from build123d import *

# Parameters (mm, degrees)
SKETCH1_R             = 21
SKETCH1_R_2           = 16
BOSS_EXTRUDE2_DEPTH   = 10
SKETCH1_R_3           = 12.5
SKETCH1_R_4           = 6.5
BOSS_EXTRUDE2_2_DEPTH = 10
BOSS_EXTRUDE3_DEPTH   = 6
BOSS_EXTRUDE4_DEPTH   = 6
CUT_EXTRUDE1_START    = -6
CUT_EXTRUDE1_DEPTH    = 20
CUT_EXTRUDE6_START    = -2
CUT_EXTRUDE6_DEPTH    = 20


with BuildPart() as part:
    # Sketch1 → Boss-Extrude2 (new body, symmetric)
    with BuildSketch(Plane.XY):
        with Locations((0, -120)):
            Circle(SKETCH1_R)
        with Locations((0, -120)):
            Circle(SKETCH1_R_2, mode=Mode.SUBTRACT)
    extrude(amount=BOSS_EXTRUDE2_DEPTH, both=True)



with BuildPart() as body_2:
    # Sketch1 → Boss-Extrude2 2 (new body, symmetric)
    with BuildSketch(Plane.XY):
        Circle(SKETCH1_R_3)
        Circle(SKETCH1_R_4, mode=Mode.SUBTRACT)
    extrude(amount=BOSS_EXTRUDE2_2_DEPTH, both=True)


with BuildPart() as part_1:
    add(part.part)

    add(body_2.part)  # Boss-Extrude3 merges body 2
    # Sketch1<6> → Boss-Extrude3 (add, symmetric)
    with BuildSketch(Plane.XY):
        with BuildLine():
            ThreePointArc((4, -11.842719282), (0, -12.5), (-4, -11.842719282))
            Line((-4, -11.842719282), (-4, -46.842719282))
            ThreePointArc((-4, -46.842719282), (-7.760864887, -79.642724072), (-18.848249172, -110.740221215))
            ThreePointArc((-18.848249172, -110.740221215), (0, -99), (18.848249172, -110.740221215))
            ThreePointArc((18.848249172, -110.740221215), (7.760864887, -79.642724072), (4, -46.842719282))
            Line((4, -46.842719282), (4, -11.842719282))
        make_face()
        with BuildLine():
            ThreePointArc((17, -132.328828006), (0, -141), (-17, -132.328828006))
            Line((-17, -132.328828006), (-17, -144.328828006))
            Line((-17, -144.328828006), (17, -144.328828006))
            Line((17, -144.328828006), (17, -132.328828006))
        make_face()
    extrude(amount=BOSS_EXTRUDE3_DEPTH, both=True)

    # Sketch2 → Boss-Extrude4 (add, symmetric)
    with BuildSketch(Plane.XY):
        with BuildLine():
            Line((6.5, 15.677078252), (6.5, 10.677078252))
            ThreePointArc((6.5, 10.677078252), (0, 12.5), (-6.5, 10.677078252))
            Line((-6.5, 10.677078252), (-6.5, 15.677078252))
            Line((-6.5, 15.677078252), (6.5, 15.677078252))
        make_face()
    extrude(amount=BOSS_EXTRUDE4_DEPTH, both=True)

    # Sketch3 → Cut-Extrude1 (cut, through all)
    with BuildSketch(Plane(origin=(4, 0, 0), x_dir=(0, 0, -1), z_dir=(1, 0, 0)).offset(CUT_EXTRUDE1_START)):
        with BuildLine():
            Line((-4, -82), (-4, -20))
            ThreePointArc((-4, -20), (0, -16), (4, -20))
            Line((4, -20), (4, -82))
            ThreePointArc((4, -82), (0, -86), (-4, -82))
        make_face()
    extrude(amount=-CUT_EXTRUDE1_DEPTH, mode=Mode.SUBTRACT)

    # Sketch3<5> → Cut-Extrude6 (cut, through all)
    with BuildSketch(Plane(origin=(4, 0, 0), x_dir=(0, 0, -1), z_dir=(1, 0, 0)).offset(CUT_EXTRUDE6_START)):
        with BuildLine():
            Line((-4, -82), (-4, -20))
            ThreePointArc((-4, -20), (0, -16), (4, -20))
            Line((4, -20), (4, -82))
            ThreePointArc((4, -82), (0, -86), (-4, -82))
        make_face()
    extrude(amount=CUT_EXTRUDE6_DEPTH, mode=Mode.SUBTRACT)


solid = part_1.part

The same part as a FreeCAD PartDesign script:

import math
import FreeCAD as App
import Part
import Sketcher

doc = App.newDocument("Part")
params = doc.addObject("Spreadsheet::Sheet", "Params")
for row, (alias, value) in enumerate([
    ("sketch1_diameter", "42 mm"),
    ("sketch1_diameter2", "32 mm"),
    ("pad1_length", "20 mm"),
    ("sketch2_diameter", "25 mm"),
    ("sketch2_diameter2", "13 mm"),
    ("pad2_length", "20 mm"),
    ("sketch3_radius", "21 mm"),
    ("sketch3_radius2", "12.5 mm"),
    ("sketch3_width", "34 mm"),
    ("sketch3_height", "35 mm"),
    ("sketch3_height2", "12 mm"),
    ("pad3_length", "12 mm"),
    ("sketch4_radius", "12.5 mm"),
    ("sketch4_width", "13 mm"),
    ("sketch4_height", "5 mm"),
    ("pad4_length", "12 mm"),
    ("sketch5_radius", "4 mm"),
    ("sketch5_width", "62 mm"),
    ("sketch6_radius", "4 mm"),
    ("sketch6_width", "62 mm"),
], start=1):
    params.set(f"A{row}", alias)
    params.set(f"B{row}", "=" + value)
    params.setAlias(f"B{row}", alias)

body = doc.addObject("PartDesign::Body", "Body")

sketch1 = body.newObject("Sketcher::SketchObject", "Sketch")
sketch1.AttachmentSupport = (doc.getObject("XY_Plane"), [""])
sketch1.MapMode = "FlatFace"
sketch1.addGeometry([
    Part.Circle(App.Vector(0, -120, 0), App.Vector(0, 0, 1), 21),
    Part.Circle(App.Vector(0, -120, 0), App.Vector(0, 0, 1), 16),
], False)
sketch1.addConstraint([
    Sketcher.Constraint("Coincident", 1, 3, 0, 3),
    Sketcher.Constraint("PointOnObject", 0, 3, -2),
    Sketcher.Constraint("Diameter", 0, 42.0),
    Sketcher.Constraint("Diameter", 1, 32.0),
    Sketcher.Constraint("DistanceY", 0, 3, -1, 1, 120.0),
])
sketch1.setExpression("Constraints[2]", "Params.sketch1_diameter")
sketch1.setExpression("Constraints[3]", "Params.sketch1_diameter2")
pad1 = body.newObject("PartDesign::Pad", "Pad")
pad1.Profile = sketch1
pad1.setExpression("Length", "Params.pad1_length")
pad1.Midplane = True
body2 = doc.addObject("PartDesign::Body", "Body001")

sketch2 = body2.newObject("Sketcher::SketchObject", "Sketch001")
sketch2.AttachmentSupport = (doc.getObject("XY_Plane001"), [""])
sketch2.MapMode = "FlatFace"
sketch2.addGeometry([
    Part.Circle(App.Vector(0, 0, 0), App.Vector(0, 0, 1), 12.5),
    Part.Circle(App.Vector(0, 0, 0), App.Vector(0, 0, 1), 6.5),
], False)
sketch2.addConstraint([
    Sketcher.Constraint("Coincident", 0, 3, -1, 1),
    Sketcher.Constraint("Coincident", 1, 3, -1, 1),
    Sketcher.Constraint("Diameter", 0, 25.0),
    Sketcher.Constraint("Diameter", 1, 13.0),
])
sketch2.setExpression("Constraints[2]", "Params.sketch2_diameter")
sketch2.setExpression("Constraints[3]", "Params.sketch2_diameter2")
pad2 = body2.newObject("PartDesign::Pad", "Pad001")
pad2.Profile = sketch2
pad2.setExpression("Length", "Params.pad2_length")
pad2.Midplane = True
body.AllowCompound = True
doc.recompute()

boolean = body.newObject("PartDesign::Boolean", "Boolean")
boolean.Type = "Fuse"
boolean.addObjects([body2])

sketch3 = body.newObject("Sketcher::SketchObject", "Sketch002")
sketch3.AttachmentSupport = (doc.getObject("XY_Plane"), [""])
sketch3.MapMode = "FlatFace"
sketch3.addGeometry([
    Part.ArcOfCircle(Part.Circle(App.Vector(0, 0, 0), App.Vector(0, 0, 1), 12.5), math.radians(-108.662925), math.radians(-71.337075)),
    Part.LineSegment(App.Vector(-4, -11.842719, 0), App.Vector(-4, -46.842719, 0)),
    Part.ArcOfCircle(Part.Circle(App.Vector(-148.911404, -46.842719, 0), App.Vector(0, 0, 1), 144.911404), math.radians(-26.16399), math.radians(0)),
    Part.ArcOfCircle(Part.Circle(App.Vector(0, -120, 0), App.Vector(0, 0, 1), 21), math.radians(26.16399), math.radians(153.83601)),
    Part.ArcOfCircle(Part.Circle(App.Vector(148.911404, -46.842719, 0), App.Vector(0, 0, 1), 144.911404), math.radians(-180), math.radians(-153.83601)),
    Part.LineSegment(App.Vector(4, -46.842719, 0), App.Vector(4, -11.842719, 0)),
    Part.ArcOfCircle(Part.Circle(App.Vector(0, -120, 0), App.Vector(0, 0, 1), 21), math.radians(-144.049432), math.radians(-35.950568)),
    Part.LineSegment(App.Vector(-17, -132.328828, 0), App.Vector(-17, -144.328828, 0)),
    Part.LineSegment(App.Vector(-17, -144.328828, 0), App.Vector(17, -144.328828, 0)),
    Part.LineSegment(App.Vector(17, -144.328828, 0), App.Vector(17, -132.328828, 0)),
], False)
sketch3.addConstraint([
    Sketcher.Constraint("Coincident", 0, 1, 1, 1),
    Sketcher.Constraint("Tangent", 1, 2, 2, 2),
    Sketcher.Constraint("Tangent", 2, 1, 3, 2),
    Sketcher.Constraint("Tangent", 3, 1, 4, 2),
    Sketcher.Constraint("Tangent", 4, 1, 5, 1),
    Sketcher.Constraint("Coincident", 5, 2, 0, 2),
    Sketcher.Constraint("Coincident", 6, 1, 7, 1),
    Sketcher.Constraint("Coincident", 7, 2, 8, 1),
    Sketcher.Constraint("Coincident", 8, 2, 9, 1),
    Sketcher.Constraint("Coincident", 9, 2, 6, 2),
    Sketcher.Constraint("Vertical", 1),
    Sketcher.Constraint("Vertical", 5),
    Sketcher.Constraint("Vertical", 7),
    Sketcher.Constraint("Horizontal", 8),
    Sketcher.Constraint("Vertical", 9),
    Sketcher.Constraint("Coincident", 0, 3, -1, 1),
    Sketcher.Constraint("Coincident", 6, 3, 3, 3),
    Sketcher.Constraint("Equal", 2, 4),
    Sketcher.Constraint("Equal", 3, 6),
    Sketcher.Constraint("Symmetric", 2, 3, 4, 3, -2),
    Sketcher.Constraint("Horizontal", 6, 1, 9, 2),
    Sketcher.Constraint("Radius", 3, 21.0),
    Sketcher.Constraint("Radius", 0, 12.5),
    Sketcher.Constraint("DistanceX", 8, 1, 8, 2, 34.0),
    Sketcher.Constraint("DistanceY", 1, 2, 1, 1, 35.0),
    Sketcher.Constraint("DistanceY", 7, 2, 7, 1, 12.0),
    Sketcher.Constraint("DistanceY", 3, 3, -1, 1, 120.0),
    Sketcher.Constraint("DistanceX", 0, 1, -1, 1, 4.0),
])
sketch3.setExpression("Constraints[21]", "Params.sketch3_radius")
sketch3.setExpression("Constraints[22]", "Params.sketch3_radius2")
sketch3.setExpression("Constraints[23]", "Params.sketch3_width")
sketch3.setExpression("Constraints[24]", "Params.sketch3_height")
sketch3.setExpression("Constraints[25]", "Params.sketch3_height2")
pad3 = body.newObject("PartDesign::Pad", "Pad002")
pad3.Profile = sketch3
pad3.setExpression("Length", "Params.pad3_length")
pad3.Midplane = True

sketch4 = body.newObject("Sketcher::SketchObject", "Sketch003")
sketch4.AttachmentSupport = (doc.getObject("XY_Plane"), [""])
sketch4.MapMode = "FlatFace"
sketch4.addGeometry([
    Part.LineSegment(App.Vector(6.5, 10.677078, 0), App.Vector(6.5, 15.677078, 0)),
    Part.LineSegment(App.Vector(6.5, 15.677078, 0), App.Vector(-6.5, 15.677078, 0)),
    Part.LineSegment(App.Vector(-6.5, 15.677078, 0), App.Vector(-6.5, 10.677078, 0)),
    Part.ArcOfCircle(Part.Circle(App.Vector(0, 0, 0), App.Vector(0, 0, 1), 12.5), math.radians(58.667749), math.radians(121.332251)),
], False)
sketch4.addConstraint([
    Sketcher.Constraint("Coincident", 0, 2, 1, 1),
    Sketcher.Constraint("Coincident", 1, 2, 2, 1),
    Sketcher.Constraint("Coincident", 2, 2, 3, 2),
    Sketcher.Constraint("Coincident", 3, 1, 0, 1),
    Sketcher.Constraint("Vertical", 0),
    Sketcher.Constraint("Horizontal", 1),
    Sketcher.Constraint("Vertical", 2),
    Sketcher.Constraint("Coincident", 3, 3, -1, 1),
    Sketcher.Constraint("Horizontal", 2, 2, 3, 1),
    Sketcher.Constraint("Radius", 3, 12.5),
    Sketcher.Constraint("DistanceX", 1, 2, 1, 1, 13.0),
    Sketcher.Constraint("DistanceY", 0, 1, 0, 2, 5.0),
])
sketch4.setExpression("Constraints[9]", "Params.sketch4_radius")
sketch4.setExpression("Constraints[10]", "Params.sketch4_width")
sketch4.setExpression("Constraints[11]", "Params.sketch4_height")
pad4 = body.newObject("PartDesign::Pad", "Pad003")
pad4.Profile = sketch4
pad4.setExpression("Length", "Params.pad4_length")
pad4.Midplane = True

sketch5 = body.newObject("Sketcher::SketchObject", "Sketch004")
sketch5.AttachmentSupport = (doc.getObject("YZ_Plane"), [""])
sketch5.MapMode = "FlatFace"
sketch5.AttachmentOffset = App.Placement(App.Vector(0, 0, -2), App.Rotation())
sketch5.addGeometry([
    Part.LineSegment(App.Vector(-20, 4, 0), App.Vector(-82, 4, 0)),
    Part.ArcOfCircle(Part.Circle(App.Vector(-82, 0, 0), App.Vector(0, 0, 1), 4), math.radians(90), math.radians(270)),
    Part.LineSegment(App.Vector(-82, -4, 0), App.Vector(-20, -4, 0)),
    Part.ArcOfCircle(Part.Circle(App.Vector(-20, 0, 0), App.Vector(0, 0, 1), 4), math.radians(-90), math.radians(90)),
], False)
sketch5.addConstraint([
    Sketcher.Constraint("Tangent", 0, 2, 1, 1),
    Sketcher.Constraint("Tangent", 1, 2, 2, 1),
    Sketcher.Constraint("Tangent", 2, 2, 3, 1),
    Sketcher.Constraint("Tangent", 3, 2, 0, 1),
    Sketcher.Constraint("Horizontal", 0),
    Sketcher.Constraint("Horizontal", 2),
    Sketcher.Constraint("PointOnObject", 1, 3, -1),
    Sketcher.Constraint("Radius", 1, 4.0),
    Sketcher.Constraint("DistanceX", 0, 2, 0, 1, 62.0),
    Sketcher.Constraint("DistanceX", 1, 3, -1, 1, 82.0),
])
sketch5.setExpression("Constraints[7]", "Params.sketch5_radius")
sketch5.setExpression("Constraints[8]", "Params.sketch5_width")
pocket1 = body.newObject("PartDesign::Pocket", "Pocket")
pocket1.Profile = sketch5
pocket1.Type = "ThroughAll"

sketch6 = body.newObject("Sketcher::SketchObject", "Sketch005")
sketch6.AttachmentSupport = (doc.getObject("YZ_Plane"), [""])
sketch6.MapMode = "FlatFace"
sketch6.AttachmentOffset = App.Placement(App.Vector(0, 0, 2), App.Rotation())
sketch6.addGeometry([
    Part.LineSegment(App.Vector(-20, 4, 0), App.Vector(-82, 4, 0)),
    Part.ArcOfCircle(Part.Circle(App.Vector(-82, 0, 0), App.Vector(0, 0, 1), 4), math.radians(90), math.radians(270)),
    Part.LineSegment(App.Vector(-82, -4, 0), App.Vector(-20, -4, 0)),
    Part.ArcOfCircle(Part.Circle(App.Vector(-20, 0, 0), App.Vector(0, 0, 1), 4), math.radians(-90), math.radians(90)),
], False)
sketch6.addConstraint([
    Sketcher.Constraint("Tangent", 0, 2, 1, 1),
    Sketcher.Constraint("Tangent", 1, 2, 2, 1),
    Sketcher.Constraint("Tangent", 2, 2, 3, 1),
    Sketcher.Constraint("Tangent", 3, 2, 0, 1),
    Sketcher.Constraint("Horizontal", 0),
    Sketcher.Constraint("Horizontal", 2),
    Sketcher.Constraint("PointOnObject", 1, 3, -1),
    Sketcher.Constraint("Radius", 1, 4.0),
    Sketcher.Constraint("DistanceX", 0, 2, 0, 1, 62.0),
    Sketcher.Constraint("DistanceX", 1, 3, -1, 1, 82.0),
])
sketch6.setExpression("Constraints[7]", "Params.sketch6_radius")
sketch6.setExpression("Constraints[8]", "Params.sketch6_width")
pocket2 = body.newObject("PartDesign::Pocket", "Pocket001")
pocket2.Profile = sketch6
pocket2.Type = "ThroughAll"
pocket2.Reversed = True

doc.recompute()
